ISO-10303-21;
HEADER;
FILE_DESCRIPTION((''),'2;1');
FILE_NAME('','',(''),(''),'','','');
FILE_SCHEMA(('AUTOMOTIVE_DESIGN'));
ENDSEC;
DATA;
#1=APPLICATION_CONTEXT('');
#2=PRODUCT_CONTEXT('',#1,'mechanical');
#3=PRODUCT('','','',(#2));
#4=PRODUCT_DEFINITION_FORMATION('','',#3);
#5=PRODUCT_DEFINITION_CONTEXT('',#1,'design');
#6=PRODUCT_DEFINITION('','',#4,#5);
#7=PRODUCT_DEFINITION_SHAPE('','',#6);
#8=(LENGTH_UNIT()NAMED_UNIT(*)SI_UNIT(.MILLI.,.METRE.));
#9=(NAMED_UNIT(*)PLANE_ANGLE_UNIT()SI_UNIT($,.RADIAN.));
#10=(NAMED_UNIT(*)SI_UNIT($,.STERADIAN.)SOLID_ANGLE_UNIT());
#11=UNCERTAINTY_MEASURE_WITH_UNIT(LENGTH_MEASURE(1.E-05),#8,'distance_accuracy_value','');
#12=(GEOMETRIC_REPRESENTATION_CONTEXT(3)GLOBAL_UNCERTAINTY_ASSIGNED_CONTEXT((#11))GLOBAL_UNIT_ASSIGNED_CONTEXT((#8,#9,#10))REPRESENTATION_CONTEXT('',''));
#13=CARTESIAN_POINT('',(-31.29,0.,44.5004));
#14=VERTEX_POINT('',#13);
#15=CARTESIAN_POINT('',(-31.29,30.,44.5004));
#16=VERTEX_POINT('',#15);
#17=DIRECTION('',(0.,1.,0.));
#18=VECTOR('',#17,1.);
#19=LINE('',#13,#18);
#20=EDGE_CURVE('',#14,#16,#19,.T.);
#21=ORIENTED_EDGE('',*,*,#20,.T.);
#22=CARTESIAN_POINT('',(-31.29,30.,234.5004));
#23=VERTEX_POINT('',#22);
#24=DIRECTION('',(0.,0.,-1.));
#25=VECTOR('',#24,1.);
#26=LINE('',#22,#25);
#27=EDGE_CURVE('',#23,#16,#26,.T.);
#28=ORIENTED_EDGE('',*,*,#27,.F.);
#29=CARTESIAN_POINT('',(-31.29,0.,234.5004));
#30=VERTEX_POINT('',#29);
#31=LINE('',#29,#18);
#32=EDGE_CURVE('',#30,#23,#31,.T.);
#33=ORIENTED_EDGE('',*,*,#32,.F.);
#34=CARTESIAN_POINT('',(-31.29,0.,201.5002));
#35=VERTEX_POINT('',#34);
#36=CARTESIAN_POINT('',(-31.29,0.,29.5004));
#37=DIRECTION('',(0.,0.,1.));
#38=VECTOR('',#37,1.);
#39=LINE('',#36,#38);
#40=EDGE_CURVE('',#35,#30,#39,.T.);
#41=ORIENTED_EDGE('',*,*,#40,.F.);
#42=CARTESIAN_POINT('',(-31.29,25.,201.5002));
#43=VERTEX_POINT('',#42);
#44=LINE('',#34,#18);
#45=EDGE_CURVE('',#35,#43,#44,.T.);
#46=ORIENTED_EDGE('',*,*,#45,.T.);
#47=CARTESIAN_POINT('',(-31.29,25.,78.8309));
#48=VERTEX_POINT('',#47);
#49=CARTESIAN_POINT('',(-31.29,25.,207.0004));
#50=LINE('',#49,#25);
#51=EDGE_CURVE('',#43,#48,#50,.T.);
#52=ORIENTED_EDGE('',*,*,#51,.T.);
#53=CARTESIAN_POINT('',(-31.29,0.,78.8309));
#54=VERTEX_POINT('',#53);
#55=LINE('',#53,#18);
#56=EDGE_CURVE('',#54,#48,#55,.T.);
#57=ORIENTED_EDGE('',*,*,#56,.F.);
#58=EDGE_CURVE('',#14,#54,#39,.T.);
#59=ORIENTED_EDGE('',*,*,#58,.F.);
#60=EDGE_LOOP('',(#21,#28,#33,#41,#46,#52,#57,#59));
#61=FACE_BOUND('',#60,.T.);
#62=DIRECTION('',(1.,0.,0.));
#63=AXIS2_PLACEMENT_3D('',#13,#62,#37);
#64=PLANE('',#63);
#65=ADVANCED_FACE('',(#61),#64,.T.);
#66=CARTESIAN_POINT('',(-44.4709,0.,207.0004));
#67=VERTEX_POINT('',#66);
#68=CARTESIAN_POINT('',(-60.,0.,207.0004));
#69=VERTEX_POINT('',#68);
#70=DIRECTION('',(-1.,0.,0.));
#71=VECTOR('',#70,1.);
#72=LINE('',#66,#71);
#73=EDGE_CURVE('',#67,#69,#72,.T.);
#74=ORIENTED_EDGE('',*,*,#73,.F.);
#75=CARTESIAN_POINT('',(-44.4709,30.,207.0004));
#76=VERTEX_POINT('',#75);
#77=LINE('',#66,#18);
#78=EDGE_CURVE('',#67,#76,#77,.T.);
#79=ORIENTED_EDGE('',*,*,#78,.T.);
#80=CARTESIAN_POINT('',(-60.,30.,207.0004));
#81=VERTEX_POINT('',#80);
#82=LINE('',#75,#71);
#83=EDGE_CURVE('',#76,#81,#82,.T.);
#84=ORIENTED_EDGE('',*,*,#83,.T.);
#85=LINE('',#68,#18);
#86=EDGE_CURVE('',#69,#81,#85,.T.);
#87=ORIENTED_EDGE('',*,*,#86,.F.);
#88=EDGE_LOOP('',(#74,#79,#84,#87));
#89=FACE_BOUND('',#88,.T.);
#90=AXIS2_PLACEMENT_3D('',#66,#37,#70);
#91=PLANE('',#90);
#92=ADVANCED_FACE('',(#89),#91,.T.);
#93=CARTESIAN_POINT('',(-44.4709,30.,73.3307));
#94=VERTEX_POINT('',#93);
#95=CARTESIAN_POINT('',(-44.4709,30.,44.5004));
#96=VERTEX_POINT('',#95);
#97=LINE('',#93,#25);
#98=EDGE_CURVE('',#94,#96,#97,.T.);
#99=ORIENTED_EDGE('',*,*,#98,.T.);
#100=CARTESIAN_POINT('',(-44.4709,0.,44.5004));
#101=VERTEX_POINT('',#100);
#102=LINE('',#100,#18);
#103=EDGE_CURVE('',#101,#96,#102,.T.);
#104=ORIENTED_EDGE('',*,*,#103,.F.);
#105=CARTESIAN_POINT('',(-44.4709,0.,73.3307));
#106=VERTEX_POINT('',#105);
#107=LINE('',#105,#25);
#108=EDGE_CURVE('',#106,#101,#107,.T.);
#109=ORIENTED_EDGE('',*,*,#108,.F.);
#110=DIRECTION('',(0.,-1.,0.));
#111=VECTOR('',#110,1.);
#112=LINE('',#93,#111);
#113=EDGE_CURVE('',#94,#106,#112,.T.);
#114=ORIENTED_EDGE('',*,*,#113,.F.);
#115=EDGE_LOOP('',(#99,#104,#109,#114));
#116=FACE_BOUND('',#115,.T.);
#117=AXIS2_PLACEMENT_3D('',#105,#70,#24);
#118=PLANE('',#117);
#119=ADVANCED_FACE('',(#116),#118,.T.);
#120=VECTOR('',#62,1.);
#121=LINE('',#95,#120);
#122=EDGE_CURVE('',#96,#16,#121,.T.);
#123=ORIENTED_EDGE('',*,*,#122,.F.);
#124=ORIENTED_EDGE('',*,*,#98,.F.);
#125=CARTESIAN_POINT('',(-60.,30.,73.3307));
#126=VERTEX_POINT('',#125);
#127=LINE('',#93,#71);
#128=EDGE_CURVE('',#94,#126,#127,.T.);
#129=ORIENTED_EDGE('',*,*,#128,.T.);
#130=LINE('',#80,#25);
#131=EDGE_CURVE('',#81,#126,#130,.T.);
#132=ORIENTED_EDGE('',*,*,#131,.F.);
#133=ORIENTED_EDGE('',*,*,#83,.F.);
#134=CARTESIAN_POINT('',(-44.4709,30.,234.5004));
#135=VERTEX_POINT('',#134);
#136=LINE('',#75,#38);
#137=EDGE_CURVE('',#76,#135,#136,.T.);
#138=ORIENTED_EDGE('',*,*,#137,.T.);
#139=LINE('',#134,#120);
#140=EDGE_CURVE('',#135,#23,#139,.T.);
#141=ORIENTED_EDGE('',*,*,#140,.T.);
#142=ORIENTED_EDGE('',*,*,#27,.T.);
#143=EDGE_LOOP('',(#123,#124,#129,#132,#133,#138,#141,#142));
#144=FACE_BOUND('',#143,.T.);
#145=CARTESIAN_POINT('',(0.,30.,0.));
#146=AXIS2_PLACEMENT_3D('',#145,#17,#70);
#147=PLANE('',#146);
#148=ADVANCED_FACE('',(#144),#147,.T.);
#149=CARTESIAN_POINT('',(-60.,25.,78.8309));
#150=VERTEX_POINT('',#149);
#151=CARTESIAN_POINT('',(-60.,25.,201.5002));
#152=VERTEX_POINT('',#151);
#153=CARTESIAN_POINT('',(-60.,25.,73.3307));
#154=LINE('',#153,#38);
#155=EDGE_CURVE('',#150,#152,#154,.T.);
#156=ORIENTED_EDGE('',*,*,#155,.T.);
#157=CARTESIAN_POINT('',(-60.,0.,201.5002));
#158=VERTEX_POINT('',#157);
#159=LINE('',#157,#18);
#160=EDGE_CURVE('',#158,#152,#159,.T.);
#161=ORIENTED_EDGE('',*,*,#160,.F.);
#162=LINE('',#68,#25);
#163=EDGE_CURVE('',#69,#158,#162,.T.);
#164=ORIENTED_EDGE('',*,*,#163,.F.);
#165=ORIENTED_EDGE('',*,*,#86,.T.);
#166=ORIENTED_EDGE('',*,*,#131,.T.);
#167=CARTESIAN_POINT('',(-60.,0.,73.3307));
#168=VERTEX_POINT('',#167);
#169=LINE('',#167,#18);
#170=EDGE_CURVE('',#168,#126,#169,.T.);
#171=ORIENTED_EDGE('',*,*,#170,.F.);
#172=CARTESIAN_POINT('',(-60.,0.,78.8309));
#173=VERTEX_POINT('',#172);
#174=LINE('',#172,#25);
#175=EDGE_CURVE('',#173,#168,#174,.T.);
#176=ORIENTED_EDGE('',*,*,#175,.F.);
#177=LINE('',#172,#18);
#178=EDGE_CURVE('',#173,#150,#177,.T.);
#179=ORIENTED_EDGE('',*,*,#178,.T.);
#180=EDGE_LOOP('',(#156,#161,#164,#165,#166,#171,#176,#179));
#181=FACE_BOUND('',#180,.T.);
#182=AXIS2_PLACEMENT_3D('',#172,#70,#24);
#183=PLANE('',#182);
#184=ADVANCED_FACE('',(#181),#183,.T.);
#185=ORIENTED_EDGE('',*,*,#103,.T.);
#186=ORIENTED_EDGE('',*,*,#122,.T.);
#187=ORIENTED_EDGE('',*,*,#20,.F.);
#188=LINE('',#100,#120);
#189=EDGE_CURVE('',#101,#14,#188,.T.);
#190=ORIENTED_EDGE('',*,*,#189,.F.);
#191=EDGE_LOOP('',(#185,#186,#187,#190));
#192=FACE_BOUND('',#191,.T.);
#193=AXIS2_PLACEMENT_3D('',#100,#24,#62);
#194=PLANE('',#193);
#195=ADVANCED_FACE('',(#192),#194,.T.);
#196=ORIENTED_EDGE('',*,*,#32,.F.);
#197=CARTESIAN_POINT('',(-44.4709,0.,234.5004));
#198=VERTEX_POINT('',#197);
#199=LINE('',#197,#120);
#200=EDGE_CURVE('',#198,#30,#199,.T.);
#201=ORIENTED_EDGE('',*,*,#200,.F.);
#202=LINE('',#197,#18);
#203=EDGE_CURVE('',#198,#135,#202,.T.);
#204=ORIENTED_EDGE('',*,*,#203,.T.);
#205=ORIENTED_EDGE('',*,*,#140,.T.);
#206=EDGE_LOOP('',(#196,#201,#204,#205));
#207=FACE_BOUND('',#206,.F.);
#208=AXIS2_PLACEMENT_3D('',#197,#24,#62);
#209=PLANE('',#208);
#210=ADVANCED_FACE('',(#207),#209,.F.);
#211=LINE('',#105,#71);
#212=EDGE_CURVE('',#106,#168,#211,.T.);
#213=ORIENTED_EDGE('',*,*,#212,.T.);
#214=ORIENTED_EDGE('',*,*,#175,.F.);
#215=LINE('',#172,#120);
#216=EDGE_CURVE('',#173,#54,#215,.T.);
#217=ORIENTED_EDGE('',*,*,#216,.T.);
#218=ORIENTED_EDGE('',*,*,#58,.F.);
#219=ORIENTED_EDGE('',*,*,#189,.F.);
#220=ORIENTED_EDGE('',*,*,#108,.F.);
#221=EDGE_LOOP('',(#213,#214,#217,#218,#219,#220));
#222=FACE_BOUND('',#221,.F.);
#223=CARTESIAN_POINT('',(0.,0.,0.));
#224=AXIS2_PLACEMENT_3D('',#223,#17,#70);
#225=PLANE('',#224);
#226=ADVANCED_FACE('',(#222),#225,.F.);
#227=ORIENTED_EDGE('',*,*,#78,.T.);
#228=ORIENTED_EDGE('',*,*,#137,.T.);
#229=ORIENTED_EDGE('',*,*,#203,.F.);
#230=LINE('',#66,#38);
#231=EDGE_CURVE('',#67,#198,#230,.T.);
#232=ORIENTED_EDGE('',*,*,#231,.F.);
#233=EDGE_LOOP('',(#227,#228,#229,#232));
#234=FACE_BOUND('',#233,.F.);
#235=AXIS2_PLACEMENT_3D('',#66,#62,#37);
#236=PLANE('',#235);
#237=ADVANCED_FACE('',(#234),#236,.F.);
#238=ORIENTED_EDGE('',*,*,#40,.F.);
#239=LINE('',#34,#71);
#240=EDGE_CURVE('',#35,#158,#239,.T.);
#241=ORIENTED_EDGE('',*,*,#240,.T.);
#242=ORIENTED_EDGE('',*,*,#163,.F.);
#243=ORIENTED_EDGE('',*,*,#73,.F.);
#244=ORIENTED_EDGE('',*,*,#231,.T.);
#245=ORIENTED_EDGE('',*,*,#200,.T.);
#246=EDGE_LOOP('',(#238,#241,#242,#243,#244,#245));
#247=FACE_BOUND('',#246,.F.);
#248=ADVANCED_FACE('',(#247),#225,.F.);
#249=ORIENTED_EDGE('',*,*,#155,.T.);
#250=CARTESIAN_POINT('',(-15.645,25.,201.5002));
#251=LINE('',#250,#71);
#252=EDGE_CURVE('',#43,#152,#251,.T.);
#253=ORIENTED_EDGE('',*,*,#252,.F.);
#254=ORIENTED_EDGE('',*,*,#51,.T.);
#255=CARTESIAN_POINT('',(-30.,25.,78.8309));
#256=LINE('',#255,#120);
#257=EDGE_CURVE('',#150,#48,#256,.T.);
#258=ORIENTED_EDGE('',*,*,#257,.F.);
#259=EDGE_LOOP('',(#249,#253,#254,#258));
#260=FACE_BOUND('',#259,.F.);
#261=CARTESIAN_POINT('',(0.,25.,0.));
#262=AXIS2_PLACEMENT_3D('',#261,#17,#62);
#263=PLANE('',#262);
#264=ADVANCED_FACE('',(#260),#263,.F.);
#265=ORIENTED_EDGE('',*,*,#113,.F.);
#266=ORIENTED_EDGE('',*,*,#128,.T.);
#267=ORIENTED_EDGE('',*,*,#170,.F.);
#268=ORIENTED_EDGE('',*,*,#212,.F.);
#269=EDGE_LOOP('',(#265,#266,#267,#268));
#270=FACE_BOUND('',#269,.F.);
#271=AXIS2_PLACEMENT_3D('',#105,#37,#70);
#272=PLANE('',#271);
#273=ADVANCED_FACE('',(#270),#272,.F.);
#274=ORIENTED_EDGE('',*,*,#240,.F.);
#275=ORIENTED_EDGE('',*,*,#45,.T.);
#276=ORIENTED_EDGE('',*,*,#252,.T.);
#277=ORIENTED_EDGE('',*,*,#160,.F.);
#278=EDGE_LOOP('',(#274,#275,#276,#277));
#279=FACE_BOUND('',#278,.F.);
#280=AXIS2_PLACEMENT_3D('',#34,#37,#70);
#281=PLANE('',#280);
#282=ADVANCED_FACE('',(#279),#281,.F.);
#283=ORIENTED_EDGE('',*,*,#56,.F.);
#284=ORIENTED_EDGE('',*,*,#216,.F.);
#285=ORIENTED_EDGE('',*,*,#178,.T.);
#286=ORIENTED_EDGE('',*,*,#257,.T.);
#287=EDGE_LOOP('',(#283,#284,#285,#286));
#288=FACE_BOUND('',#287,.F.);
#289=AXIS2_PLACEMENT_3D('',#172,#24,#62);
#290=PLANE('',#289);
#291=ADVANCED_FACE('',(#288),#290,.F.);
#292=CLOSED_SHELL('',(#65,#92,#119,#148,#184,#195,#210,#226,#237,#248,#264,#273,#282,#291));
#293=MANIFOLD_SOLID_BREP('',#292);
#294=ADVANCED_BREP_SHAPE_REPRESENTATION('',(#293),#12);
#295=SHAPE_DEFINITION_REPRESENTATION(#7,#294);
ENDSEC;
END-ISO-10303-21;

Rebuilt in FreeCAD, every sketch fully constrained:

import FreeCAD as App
import Part
import Sketcher
Q = App.Units.Quantity

doc = App.newDocument("Part")
params = doc.addObject("Spreadsheet::Sheet", "Params")
for row, (alias, value) in enumerate([
    ("sketch1_height", "27.5 mm"),
    ("sketch1_width", "28.71 mm"),
    ("pad1_length", "30 mm"),
    ("sketch2_width", "28.71 mm"),
    ("pad2_length", "5 mm"),
], start=1):
    params.set(f"A{row}", alias)
    params.set(f"B{row}", "=" + value)
    params.setAlias(f"B{row}", alias)

body = doc.addObject("PartDesign::Body", "Body")
body.AllowCompound = True

sketch1 = body.newObject("Sketcher::SketchObject", "Sketch")
sketch1.AttachmentSupport = (doc.getObject("XZ_Plane"), [""])
sketch1.MapMode = "FlatFace"
sketch1.addGeometry(Part.LineSegment(App.Vector(-44, 45, 0), App.Vector(-44, 73, 0)), False)
sketch1.addGeometry(Part.LineSegment(App.Vector(-44, 73, 0), App.Vector(-60, 73, 0)), False)
sketch1.addGeometry(Part.LineSegment(App.Vector(-60, 73, 0), App.Vector(-60, 79, 0)), False)
sketch1.addGeometry(Part.LineSegment(App.Vector(-60, 79, 0), App.Vector(-31, 79, 0)), False)
sketch1.addGeometry(Part.LineSegment(App.Vector(-31, 79, 0), App.Vector(-31, 45, 0)), False)
sketch1.addGeometry(Part.LineSegment(App.Vector(-31, 45, 0), App.Vector(-44, 45, 0)), False)
sketch1.addGeometry(Part.LineSegment(App.Vector(-31, 235, 0), App.Vector(-31, 202, 0)), False)
sketch1.addGeometry(Part.LineSegment(App.Vector(-31, 202, 0), App.Vector(-60, 202, 0)), False)
sketch1.addGeometry(Part.LineSegment(App.Vector(-60, 202, 0), App.Vector(-60, 207, 0)), False)
sketch1.addGeometry(Part.LineSegment(App.Vector(-60, 207, 0), App.Vector(-44, 207, 0)), False)
sketch1.addGeometry(Part.LineSegment(App.Vector(-44, 207, 0), App.Vector(-44, 235, 0)), False)
sketch1.addGeometry(Part.LineSegment(App.Vector(-44, 235, 0), App.Vector(-31, 235, 0)), False)
sketch1.addConstraint(Sketcher.Constraint("Coincident", 0, 2, 1, 1))
sketch1.addConstraint(Sketcher.Constraint("Coincident", 1, 2, 2, 1))
sketch1.addConstraint(Sketcher.Constraint("Coincident", 2, 2, 3, 1))
sketch1.addConstraint(Sketcher.Constraint("Coincident", 3, 2, 4, 1))
sketch1.addConstraint(Sketcher.Constraint("Coincident", 4, 2, 5, 1))
sketch1.addConstraint(Sketcher.Constraint("Coincident", 5, 2, 0, 1))
sketch1.addConstraint(Sketcher.Constraint("Coincident", 6, 2, 7, 1))
sketch1.addConstraint(Sketcher.Constraint("Coincident", 7, 2, 8, 1))
sketch1.addConstraint(Sketcher.Constraint("Coincident", 8, 2, 9, 1))
sketch1.addConstraint(Sketcher.Constraint("Coincident", 9, 2, 10, 1))
sketch1.addConstraint(Sketcher.Constraint("Coincident", 10, 2, 11, 1))
sketch1.addConstraint(Sketcher.Constraint("Coincident", 11, 2, 6, 1))
sketch1.addConstraint(Sketcher.Constraint("Vertical", 0))
sketch1.addConstraint(Sketcher.Constraint("Horizontal", 1))
sketch1.addConstraint(Sketcher.Constraint("Vertical", 2))
sketch1.addConstraint(Sketcher.Constraint("Horizontal", 3))
sketch1.addConstraint(Sketcher.Constraint("Vertical", 4))
sketch1.addConstraint(Sketcher.Constraint("Horizontal", 5))
sketch1.addConstraint(Sketcher.Constraint("Vertical", 6))
sketch1.addConstraint(Sketcher.Constraint("Horizontal", 7))
sketch1.addConstraint(Sketcher.Constraint("Vertical", 8))
sketch1.addConstraint(Sketcher.Constraint("Horizontal", 9))
sketch1.addConstraint(Sketcher.Constraint("Vertical", 10))
sketch1.addConstraint(Sketcher.Constraint("Horizontal", 11))
sketch1.addConstraint(Sketcher.Constraint("Vertical", 4, 2, 6, 2))
sketch1.addConstraint(Sketcher.Constraint("Vertical", 2, 2, 7, 2))
sketch1.addConstraint(Sketcher.Constraint("Vertical", 5, 2, 9, 2))
sketch1.addConstraint(Sketcher.Constraint("Equal", 2, 8))
sketch1.addConstraint(Sketcher.Constraint("DistanceY", 2, 1, 2, 2, Q("5.5002 mm")))
sketch1.addConstraint(Sketcher.Constraint("DistanceY", 10, 1, 10, 2, Q("27.5 mm")))
sketch1.addConstraint(Sketcher.Constraint("DistanceX", 1, 2, -1, 1, Q("60 mm")))
sketch1.addConstraint(Sketcher.Constraint("DistanceX", 3, 1, 3, 2, Q("28.71 mm")))
sketch1.addConstraint(Sketcher.Constraint("DistanceX", 1, 2, 1, 1, Q("15.529 mm")))
sketch1.addConstraint(Sketcher.Constraint("DistanceY", 0, 1, 0, 2, Q("28.8303 mm")))
sketch1.addConstraint(Sketcher.Constraint("DistanceY", -1, 1, 2, 2, Q("78.831 mm")))
sketch1.addConstraint(Sketcher.Constraint("DistanceY", -1, 1, 6, 2, Q("201.5002 mm")))
sketch1.setExpression("Constraints[29]", "Params.sketch1_height")
sketch1.setExpression("Constraints[31]", "Params.sketch1_width")
pad1 = body.newObject("PartDesign::Pad", "Pad")
pad1.Profile = sketch1
pad1.setExpression("Length", "Params.pad1_length")
pad1.Reversed = True

sketch2 = body.newObject("Sketcher::SketchObject", "Sketch001")
sketch2.AttachmentSupport = (doc.getObject("XZ_Plane"), [""])
sketch2.MapMode = "FlatFace"
sketch2.AttachmentOffset = App.Placement(App.Vector(0, 0, -30), App.Rotation())
sketch2.addGeometry(Part.LineSegment(App.Vector(-60, 73, 0), App.Vector(-60, 207, 0)), False)
sketch2.addGeometry(Part.LineSegment(App.Vector(-60, 207, 0), App.Vector(-31, 207, 0)), False)
sketch2.addGeometry(Part.LineSegment(App.Vector(-31, 207, 0), App.Vector(-31, 73, 0)), False)
sketch2.addGeometry(Part.LineSegment(App.Vector(-31, 73, 0), App.Vector(-60, 73, 0)), False)
sketch2.addConstraint(Sketcher.Constraint("Coincident", 0, 2, 1, 1))
sketch2.addConstraint(Sketcher.Constraint("Coincident", 1, 2, 2, 1))
sketch2.addConstraint(Sketcher.Constraint("Coincident", 2, 2, 3, 1))
sketch2.addConstraint(Sketcher.Constraint("Coincident", 3, 2, 0, 1))
sketch2.addConstraint(Sketcher.Constraint("Vertical", 0))
sketch2.addConstraint(Sketcher.Constraint("Horizontal", 1))
sketch2.addConstraint(Sketcher.Constraint("Vertical", 2))
sketch2.addConstraint(Sketcher.Constraint("Horizontal", 3))
sketch2.addConstraint(Sketcher.Constraint("DistanceX", 0, 2, -1, 1, Q("60 mm")))
sketch2.addConstraint(Sketcher.Constraint("DistanceX", 1, 1, 1, 2, Q("28.71 mm")))
sketch2.addConstraint(Sketcher.Constraint("DistanceY", 0, 1, 0, 2, Q("133.6697 mm")))
sketch2.addConstraint(Sketcher.Constraint("DistanceY", -1, 1, 0, 2, Q("207.0004 mm")))
sketch2.setExpression("Constraints[9]", "Params.sketch2_width")
pad2 = body.newObject("PartDesign::Pad", "Pad001")
pad2.Profile = sketch2
pad2.setExpression("Length", "Params.pad2_length")

doc.recompute()
